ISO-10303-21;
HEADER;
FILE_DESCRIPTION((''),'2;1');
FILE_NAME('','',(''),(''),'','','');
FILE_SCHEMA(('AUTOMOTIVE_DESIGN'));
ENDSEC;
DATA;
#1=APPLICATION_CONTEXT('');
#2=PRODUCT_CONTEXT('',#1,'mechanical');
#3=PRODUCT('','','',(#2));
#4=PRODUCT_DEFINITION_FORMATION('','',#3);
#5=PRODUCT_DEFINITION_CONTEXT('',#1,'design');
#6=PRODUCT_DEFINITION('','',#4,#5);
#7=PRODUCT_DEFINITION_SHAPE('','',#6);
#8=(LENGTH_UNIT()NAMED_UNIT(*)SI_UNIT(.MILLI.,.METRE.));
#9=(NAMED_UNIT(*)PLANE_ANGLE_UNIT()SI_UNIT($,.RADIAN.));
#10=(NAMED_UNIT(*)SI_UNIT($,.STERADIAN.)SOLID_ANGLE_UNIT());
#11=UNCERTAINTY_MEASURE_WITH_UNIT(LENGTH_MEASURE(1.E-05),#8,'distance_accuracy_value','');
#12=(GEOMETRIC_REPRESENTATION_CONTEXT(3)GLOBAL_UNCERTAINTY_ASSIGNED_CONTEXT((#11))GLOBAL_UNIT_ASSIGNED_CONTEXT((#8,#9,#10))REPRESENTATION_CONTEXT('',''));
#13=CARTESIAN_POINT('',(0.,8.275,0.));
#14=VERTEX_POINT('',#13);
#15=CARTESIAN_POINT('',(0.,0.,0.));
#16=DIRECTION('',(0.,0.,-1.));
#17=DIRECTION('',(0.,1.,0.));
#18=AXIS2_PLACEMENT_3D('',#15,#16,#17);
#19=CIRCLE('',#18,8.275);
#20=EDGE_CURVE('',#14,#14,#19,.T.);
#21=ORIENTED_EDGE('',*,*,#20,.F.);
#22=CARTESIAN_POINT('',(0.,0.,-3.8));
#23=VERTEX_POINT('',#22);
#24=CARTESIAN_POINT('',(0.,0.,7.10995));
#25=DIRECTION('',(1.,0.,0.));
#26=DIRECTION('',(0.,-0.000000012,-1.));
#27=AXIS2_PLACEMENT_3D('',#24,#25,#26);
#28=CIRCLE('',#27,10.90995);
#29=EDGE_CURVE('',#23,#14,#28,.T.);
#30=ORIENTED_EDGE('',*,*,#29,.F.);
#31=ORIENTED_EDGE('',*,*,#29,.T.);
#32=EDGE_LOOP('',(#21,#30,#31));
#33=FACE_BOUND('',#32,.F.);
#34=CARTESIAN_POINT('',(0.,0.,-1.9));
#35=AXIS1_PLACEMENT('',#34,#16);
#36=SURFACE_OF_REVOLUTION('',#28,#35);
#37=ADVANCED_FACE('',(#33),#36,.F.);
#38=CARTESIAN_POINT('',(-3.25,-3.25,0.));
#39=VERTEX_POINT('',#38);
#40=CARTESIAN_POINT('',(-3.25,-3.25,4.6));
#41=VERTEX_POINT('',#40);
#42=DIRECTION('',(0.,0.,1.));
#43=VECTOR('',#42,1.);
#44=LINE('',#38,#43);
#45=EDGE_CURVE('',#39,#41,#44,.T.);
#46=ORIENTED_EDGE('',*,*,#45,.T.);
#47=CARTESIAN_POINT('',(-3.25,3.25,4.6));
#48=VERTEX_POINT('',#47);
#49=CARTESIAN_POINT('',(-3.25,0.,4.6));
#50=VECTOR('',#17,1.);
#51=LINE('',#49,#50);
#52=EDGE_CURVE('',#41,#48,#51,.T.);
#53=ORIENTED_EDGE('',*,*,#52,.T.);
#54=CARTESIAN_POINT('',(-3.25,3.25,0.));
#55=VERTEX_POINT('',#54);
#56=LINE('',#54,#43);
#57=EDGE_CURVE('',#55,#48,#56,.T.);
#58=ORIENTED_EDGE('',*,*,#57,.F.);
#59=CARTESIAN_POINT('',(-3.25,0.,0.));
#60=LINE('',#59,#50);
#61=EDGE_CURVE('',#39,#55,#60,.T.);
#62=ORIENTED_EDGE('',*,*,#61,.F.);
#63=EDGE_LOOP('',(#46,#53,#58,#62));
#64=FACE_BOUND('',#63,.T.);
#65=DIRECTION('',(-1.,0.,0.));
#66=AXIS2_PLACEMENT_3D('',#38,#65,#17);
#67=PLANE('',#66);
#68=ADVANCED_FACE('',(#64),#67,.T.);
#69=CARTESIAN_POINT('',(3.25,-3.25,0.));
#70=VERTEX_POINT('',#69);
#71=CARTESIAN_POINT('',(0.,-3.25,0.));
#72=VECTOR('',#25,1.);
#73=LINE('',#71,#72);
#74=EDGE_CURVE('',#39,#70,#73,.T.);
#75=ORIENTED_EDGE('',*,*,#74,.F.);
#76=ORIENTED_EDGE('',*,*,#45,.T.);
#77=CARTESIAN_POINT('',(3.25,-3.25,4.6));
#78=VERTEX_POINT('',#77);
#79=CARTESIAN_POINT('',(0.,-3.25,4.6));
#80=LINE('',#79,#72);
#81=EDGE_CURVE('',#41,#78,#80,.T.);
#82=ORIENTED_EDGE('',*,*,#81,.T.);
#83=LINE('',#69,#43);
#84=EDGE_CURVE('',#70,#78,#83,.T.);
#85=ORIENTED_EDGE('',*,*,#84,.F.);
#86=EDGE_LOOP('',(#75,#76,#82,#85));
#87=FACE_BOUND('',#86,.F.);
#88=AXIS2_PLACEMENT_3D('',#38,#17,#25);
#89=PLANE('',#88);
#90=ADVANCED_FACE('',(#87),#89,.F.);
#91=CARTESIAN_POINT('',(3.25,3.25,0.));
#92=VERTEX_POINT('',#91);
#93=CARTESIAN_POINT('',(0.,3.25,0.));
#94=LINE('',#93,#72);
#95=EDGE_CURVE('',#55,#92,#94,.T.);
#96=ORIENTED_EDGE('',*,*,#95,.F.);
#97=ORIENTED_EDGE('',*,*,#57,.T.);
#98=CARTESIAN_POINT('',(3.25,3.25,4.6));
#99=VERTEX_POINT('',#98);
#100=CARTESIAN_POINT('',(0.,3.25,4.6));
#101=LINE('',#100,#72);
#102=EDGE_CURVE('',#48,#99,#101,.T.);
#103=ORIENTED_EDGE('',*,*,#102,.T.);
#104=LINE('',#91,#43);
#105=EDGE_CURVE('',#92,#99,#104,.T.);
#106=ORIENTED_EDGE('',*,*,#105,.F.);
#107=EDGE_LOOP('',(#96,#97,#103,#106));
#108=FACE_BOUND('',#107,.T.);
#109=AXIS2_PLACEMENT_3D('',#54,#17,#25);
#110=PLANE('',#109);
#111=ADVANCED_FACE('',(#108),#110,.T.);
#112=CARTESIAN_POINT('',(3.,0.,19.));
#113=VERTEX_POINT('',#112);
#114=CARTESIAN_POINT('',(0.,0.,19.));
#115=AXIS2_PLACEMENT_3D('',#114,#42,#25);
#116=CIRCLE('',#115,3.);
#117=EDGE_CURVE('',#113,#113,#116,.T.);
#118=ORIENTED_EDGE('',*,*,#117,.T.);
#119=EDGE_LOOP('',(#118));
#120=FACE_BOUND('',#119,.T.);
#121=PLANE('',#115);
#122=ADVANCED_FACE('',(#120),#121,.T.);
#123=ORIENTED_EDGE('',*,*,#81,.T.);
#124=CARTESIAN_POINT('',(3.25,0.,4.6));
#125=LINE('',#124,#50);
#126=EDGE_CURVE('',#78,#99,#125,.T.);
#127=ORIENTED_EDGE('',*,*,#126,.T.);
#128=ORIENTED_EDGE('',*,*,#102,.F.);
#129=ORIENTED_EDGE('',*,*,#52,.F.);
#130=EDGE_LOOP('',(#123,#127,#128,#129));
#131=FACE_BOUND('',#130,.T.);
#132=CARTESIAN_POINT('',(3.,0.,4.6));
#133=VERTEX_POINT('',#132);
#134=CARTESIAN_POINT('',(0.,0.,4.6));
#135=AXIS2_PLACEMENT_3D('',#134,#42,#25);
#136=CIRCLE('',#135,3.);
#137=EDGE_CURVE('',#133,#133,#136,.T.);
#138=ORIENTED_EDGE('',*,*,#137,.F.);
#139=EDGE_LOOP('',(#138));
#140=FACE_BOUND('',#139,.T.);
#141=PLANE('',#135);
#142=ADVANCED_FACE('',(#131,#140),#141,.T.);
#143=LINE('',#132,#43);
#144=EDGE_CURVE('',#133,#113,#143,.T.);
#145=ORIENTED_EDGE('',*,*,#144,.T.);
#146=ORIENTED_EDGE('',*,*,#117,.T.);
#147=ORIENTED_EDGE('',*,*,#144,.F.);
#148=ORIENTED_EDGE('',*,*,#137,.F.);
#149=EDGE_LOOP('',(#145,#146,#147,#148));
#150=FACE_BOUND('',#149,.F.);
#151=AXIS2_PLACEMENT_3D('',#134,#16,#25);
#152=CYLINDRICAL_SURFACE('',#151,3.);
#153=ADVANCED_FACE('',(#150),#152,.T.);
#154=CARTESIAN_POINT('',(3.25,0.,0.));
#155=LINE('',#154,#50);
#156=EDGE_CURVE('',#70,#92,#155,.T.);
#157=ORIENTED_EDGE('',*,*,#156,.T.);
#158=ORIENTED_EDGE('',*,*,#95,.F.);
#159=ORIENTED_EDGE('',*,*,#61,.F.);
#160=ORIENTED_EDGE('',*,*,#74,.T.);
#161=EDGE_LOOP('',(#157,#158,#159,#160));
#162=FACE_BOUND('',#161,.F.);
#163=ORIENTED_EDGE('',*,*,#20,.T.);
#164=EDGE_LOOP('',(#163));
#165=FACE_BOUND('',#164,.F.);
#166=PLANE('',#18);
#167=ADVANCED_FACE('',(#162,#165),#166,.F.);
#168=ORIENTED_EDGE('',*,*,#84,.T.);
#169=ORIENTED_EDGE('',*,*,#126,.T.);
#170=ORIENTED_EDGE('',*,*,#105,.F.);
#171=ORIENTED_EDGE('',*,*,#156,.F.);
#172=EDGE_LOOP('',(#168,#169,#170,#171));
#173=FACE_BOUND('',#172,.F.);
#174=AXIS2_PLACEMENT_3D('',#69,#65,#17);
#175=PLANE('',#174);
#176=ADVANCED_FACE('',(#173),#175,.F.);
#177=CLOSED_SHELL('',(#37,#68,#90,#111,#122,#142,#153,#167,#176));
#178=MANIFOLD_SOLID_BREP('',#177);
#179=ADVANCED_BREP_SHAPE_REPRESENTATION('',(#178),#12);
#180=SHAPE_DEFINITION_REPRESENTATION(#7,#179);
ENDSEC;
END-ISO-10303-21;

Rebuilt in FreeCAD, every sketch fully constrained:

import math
import FreeCAD as App
import Part
import Sketcher
Q = App.Units.Quantity

doc = App.newDocument("Part")
body = doc.addObject("PartDesign::Body", "Body")

# Sketch on XY plane
sketch1 = body.newObject("Sketcher::SketchObject", "Sketch")
sketch1.AttachmentSupport = (doc.getObject("XY_Plane"), [""])
sketch1.MapMode = "FlatFace"
sketch1.addGeometry([
    Part.LineSegment(App.Vector(-3, 3, 0), App.Vector(-3, -3, 0)),
    Part.LineSegment(App.Vector(-3, -3, 0), App.Vector(3, -3, 0)),
    Part.LineSegment(App.Vector(3, -3, 0), App.Vector(3, 3, 0)),
    Part.LineSegment(App.Vector(3, 3, 0), App.Vector(-3, 3, 0)),
], False)
sketch1.addConstraint([
    Sketcher.Constraint("Coincident", 0, 2, 1, 1),
    Sketcher.Constraint("Coincident", 1, 2, 2, 1),
    Sketcher.Constraint("Coincident", 2, 2, 3, 1),
    Sketcher.Constraint("Coincident", 3, 2, 0, 1),
    Sketcher.Constraint("Vertical", 0),
    Sketcher.Constraint("Horizontal", 1),
    Sketcher.Constraint("Vertical", 2),
    Sketcher.Constraint("Horizontal", 3),
    Sketcher.Constraint("Symmetric", 0, 2, 2, 2, -1, 1),
    Sketcher.Constraint("Equal", 3, 0),
    Sketcher.Constraint("DistanceX", 1, 1, 1, 2, Q("6.5 mm")),
])
pad1 = body.newObject("PartDesign::Pad", "Pad")
pad1.Profile = sketch1
pad1.Length = 4.6

# Sketch on XY plane
sketch2 = body.newObject("Sketcher::SketchObject", "Sketch001")
sketch2.AttachmentSupport = (doc.getObject("XY_Plane"), [""])
sketch2.MapMode = "FlatFace"
sketch2.AttachmentOffset = App.Placement(App.Vector(0, 0, 4.6), App.Rotation())
sketch2.addGeometry(Part.Circle(App.Vector(0, 0, 0), App.Vector(0, 0, 1), 3), False)
sketch2.addConstraint([
    Sketcher.Constraint("Coincident", 0, 3, -1, 1),
    Sketcher.Constraint("Diameter", 0, Q("6 mm")),
])
pad2 = body.newObject("PartDesign::Pad", "Pad001")
pad2.Profile = sketch2
pad2.Length = 14.4

# Sketch on YZ plane
sketch3 = body.newObject("Sketcher::SketchObject", "Sketch002")
sketch3.AttachmentSupport = (doc.getObject("YZ_Plane"), [""])
sketch3.MapMode = "FlatFace"
sketch3.addGeometry([
    Part.ArcOfCircle(Part.Circle(App.Vector(0, 7.1, 0), App.Vector(0, 0, 1), 10.9), math.radians(-90), math.radians(-41)),
    Part.LineSegment(App.Vector(8.3, 0, 0), App.Vector(0, 0, 0)),
    Part.LineSegment(App.Vector(0, 0, 0), App.Vector(0, -3.8, 0)),
], False)
sketch3.addConstraint([
    Sketcher.Constraint("Coincident", 0, 2, 1, 1),
    Sketcher.Constraint("Coincident", 1, 2, 2, 1),
    Sketcher.Constraint("Coincident", 2, 2, 0, 1),
    Sketcher.Constraint("Horizontal", 1),
    Sketcher.Constraint("Vertical", 2),
    Sketcher.Constraint("Coincident", 1, 2, -1, 1),
    Sketcher.Constraint("PointOnObject", 0, 3, -2),
    Sketcher.Constraint("DistanceY", 2, 2, 2, 1, Q("3.8 mm")),
    Sketcher.Constraint("DistanceX", 1, 2, 1, 1, Q("8.275 mm")),
])
revolution = body.newObject("PartDesign::Revolution", "Revolution")
revolution.Profile = sketch3
revolution.ReferenceAxis = (sketch3, ["V_Axis"])
revolution.Angle = 360

doc.recompute()
